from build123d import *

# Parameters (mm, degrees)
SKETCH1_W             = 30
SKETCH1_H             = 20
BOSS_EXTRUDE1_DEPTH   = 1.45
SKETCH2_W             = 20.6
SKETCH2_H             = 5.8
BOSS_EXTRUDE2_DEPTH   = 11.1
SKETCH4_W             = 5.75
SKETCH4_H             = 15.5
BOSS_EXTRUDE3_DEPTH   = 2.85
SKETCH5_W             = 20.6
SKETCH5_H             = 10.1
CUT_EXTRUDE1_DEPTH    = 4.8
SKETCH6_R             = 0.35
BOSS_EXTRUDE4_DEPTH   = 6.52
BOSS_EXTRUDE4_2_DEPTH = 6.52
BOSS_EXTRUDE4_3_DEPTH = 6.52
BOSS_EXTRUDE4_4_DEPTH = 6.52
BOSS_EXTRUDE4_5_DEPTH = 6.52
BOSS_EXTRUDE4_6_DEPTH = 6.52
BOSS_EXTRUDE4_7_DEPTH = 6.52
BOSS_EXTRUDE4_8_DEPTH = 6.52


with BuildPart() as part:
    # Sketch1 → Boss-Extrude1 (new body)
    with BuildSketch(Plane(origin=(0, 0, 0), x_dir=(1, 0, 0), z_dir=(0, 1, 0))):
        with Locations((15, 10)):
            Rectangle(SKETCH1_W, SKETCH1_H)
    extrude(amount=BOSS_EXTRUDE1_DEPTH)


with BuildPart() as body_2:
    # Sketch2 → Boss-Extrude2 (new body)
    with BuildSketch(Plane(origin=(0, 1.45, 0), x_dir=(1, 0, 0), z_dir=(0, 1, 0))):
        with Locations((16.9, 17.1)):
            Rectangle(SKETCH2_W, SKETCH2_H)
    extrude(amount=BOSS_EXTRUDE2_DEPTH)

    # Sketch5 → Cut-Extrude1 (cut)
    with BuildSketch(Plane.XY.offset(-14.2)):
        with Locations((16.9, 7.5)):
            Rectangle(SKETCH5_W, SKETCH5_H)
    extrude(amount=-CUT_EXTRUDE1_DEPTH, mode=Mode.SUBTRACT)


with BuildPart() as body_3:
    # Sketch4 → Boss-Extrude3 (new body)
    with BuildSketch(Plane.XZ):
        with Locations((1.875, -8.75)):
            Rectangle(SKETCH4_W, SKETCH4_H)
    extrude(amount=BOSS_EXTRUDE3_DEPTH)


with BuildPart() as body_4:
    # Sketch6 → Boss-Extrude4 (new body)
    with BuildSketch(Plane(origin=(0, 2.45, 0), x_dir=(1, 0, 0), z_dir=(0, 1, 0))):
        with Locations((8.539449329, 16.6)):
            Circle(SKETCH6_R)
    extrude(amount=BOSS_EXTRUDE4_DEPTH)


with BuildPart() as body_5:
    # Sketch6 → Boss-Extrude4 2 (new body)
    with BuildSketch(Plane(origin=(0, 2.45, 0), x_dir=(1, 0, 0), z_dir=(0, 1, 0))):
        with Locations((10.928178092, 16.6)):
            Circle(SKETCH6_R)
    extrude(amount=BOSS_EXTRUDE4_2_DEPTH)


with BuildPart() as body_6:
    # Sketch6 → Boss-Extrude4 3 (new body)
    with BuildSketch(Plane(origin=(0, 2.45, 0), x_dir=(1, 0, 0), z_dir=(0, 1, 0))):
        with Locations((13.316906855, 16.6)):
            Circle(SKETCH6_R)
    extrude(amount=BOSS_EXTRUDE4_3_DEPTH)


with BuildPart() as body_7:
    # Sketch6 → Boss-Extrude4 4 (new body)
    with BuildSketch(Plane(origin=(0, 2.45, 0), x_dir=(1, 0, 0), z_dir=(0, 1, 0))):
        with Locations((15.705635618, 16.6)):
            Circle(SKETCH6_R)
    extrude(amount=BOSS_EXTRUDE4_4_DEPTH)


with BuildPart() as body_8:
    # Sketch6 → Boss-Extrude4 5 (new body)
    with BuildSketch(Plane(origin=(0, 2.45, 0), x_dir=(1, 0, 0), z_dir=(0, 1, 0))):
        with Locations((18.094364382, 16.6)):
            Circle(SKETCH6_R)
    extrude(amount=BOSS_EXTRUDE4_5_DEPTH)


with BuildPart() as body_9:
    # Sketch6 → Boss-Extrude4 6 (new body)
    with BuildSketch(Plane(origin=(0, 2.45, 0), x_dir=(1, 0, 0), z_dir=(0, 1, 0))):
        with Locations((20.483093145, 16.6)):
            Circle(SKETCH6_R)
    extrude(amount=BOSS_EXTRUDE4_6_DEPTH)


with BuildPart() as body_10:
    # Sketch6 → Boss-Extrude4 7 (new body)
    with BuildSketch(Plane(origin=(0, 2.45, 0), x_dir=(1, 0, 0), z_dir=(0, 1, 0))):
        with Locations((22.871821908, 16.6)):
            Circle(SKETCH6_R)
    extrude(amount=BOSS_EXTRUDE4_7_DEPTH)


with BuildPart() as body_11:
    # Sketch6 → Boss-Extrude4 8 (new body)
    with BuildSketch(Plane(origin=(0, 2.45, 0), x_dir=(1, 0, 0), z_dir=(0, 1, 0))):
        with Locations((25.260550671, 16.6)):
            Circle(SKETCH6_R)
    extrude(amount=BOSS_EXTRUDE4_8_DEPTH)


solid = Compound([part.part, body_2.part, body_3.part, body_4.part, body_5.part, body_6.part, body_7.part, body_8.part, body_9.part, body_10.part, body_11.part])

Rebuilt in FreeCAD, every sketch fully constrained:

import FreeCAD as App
import Part
import Sketcher

V = App.Vector
Q = App.Units.Quantity

doc = App.newDocument("Part")
body = doc.addObject("PartDesign::Body", "Body")

# Sketch on XZ plane
sketch1 = body.newObject("Sketcher::SketchObject", "Sketch")
sketch1.AttachmentSupport = (doc.getObject("XZ_Plane"), [""])
sketch1.MapMode = "FlatFace"
sketch1.addGeometry(Part.LineSegment(V(0, -20, 0), V(0, 0, 0)), False)
sketch1.addGeometry(Part.LineSegment(V(0, 0, 0), V(30, 0, 0)), False)
sketch1.addGeometry(Part.LineSegment(V(30, 0, 0), V(30, -20, 0)), False)
sketch1.addGeometry(Part.LineSegment(V(30, -20, 0), V(0, -20, 0)), False)
sketch1.addConstraint(Sketcher.Constraint("Coincident", 0, 2, 1, 1))
sketch1.addConstraint(Sketcher.Constraint("Coincident", 1, 2, 2, 1))
sketch1.addConstraint(Sketcher.Constraint("Coincident", 2, 2, 3, 1))
sketch1.addConstraint(Sketcher.Constraint("Coincident", 3, 2, 0, 1))
sketch1.addConstraint(Sketcher.Constraint("Vertical", 0))
sketch1.addConstraint(Sketcher.Constraint("Horizontal", 1))
sketch1.addConstraint(Sketcher.Constraint("Vertical", 2))
sketch1.addConstraint(Sketcher.Constraint("Horizontal", 3))
sketch1.addConstraint(Sketcher.Constraint("Coincident", 0, 2, -1, 1))
sketch1.addConstraint(Sketcher.Constraint("DistanceX", 1, 1, 1, 2, Q("30 mm")))
sketch1.addConstraint(Sketcher.Constraint("DistanceY", 0, 1, 0, 2, Q("20 mm")))
pad1 = body.newObject("PartDesign::Pad", "Pad")
pad1.Profile = sketch1
pad1.Length = 1.45
pad1.Reversed = True
body2 = doc.addObject("PartDesign::Body", "Body001")

# Sketch on XZ plane
sketch2 = body2.newObject("Sketcher::SketchObject", "Sketch001")
sketch2.AttachmentSupport = (doc.getObject("XZ_Plane001"), [""])
sketch2.MapMode = "FlatFace"
sketch2.AttachmentOffset = App.Placement(V(0, 0, -1.45), App.Rotation())
sketch2.addGeometry(Part.LineSegment(V(7, -20, 0), V(7, -14, 0)), False)
sketch2.addGeometry(Part.LineSegment(V(7, -14, 0), V(27, -14, 0)), False)
sketch2.addGeometry(Part.LineSegment(V(27, -14, 0), V(27, -20, 0)), False)
sketch2.addGeometry(Part.LineSegment(V(27, -20, 0), V(7, -20, 0)), False)
sketch2.addConstraint(Sketcher.Constraint("Coincident", 0, 2, 1, 1))
sketch2.addConstraint(Sketcher.Constraint("Coincident", 1, 2, 2, 1))
sketch2.addConstraint(Sketcher.Constraint("Coincident", 2, 2, 3, 1))
sketch2.addConstraint(Sketcher.Constraint("Coincident", 3, 2, 0, 1))
sketch2.addConstraint(Sketcher.Constraint("Vertical", 0))
sketch2.addConstraint(Sketcher.Constraint("Horizontal", 1))
sketch2.addConstraint(Sketcher.Constraint("Vertical", 2))
sketch2.addConstraint(Sketcher.Constraint("Horizontal", 3))
sketch2.addConstraint(Sketcher.Constraint("DistanceX", 1, 1, 1, 2, Q("20.6 mm")))
sketch2.addConstraint(Sketcher.Constraint("DistanceY", 0, 1, 0, 2, Q("5.8 mm")))
sketch2.addConstraint(Sketcher.Constraint("DistanceY", 2, 2, -1, 1, Q("20 mm")))
sketch2.addConstraint(Sketcher.Constraint("DistanceX", -1, 1, 0, 2, Q("6.6 mm")))
pad2 = body2.newObject("PartDesign::Pad", "Pad001")
pad2.Profile = sketch2
pad2.Length = 11.1
pad2.Reversed = True

# Sketch on XY plane
sketch3 = body2.newObject("Sketcher::SketchObject", "Sketch002")
sketch3.AttachmentSupport = (doc.getObject("XY_Plane001"), [""])
sketch3.MapMode = "FlatFace"
sketch3.AttachmentOffset = App.Placement(V(0, 0, -14.2), App.Rotation())
sketch3.addGeometry(Part.LineSegment(V(7, 13, 0), V(7, 2, 0)), False)
sketch3.addGeometry(Part.LineSegment(V(7, 2, 0), V(27, 2, 0)), False)
sketch3.addGeometry(Part.LineSegment(V(27, 2, 0), V(27, 13, 0)), False)
sketch3.addGeometry(Part.LineSegment(V(27, 13, 0), V(7, 13, 0)), False)
sketch3.addConstraint(Sketcher.Constraint("Coincident", 0, 2, 1, 1))
sketch3.addConstraint(Sketcher.Constraint("Coincident", 1, 2, 2, 1))
sketch3.addConstraint(Sketcher.Constraint("Coincident", 2, 2, 3, 1))
sketch3.addConstraint(Sketcher.Constraint("Coincident", 3, 2, 0, 1))
sketch3.addConstraint(Sketcher.Constraint("Vertical", 0))
sketch3.addConstraint(Sketcher.Constraint("Horizontal", 1))
sketch3.addConstraint(Sketcher.Constraint("Vertical", 2))
sketch3.addConstraint(Sketcher.Constraint("Horizontal", 3))
sketch3.addConstraint(Sketcher.Constraint("DistanceX", 1, 1, 1, 2, Q("20.6 mm")))
sketch3.addConstraint(Sketcher.Constraint("DistanceY", 0, 2, 0, 1, Q("10.1 mm")))
sketch3.addConstraint(Sketcher.Constraint("DistanceX", -1, 1, 0, 2, Q("6.6 mm")))
sketch3.addConstraint(Sketcher.Constraint("DistanceY", -1, 1, 0, 2, Q("2.45 mm")))
pocket1 = body2.newObject("PartDesign::Pocket", "Pocket")
pocket1.Profile = sketch3
pocket1.Length = 4.8
body3 = doc.addObject("PartDesign::Body", "Body002")

# Sketch on XZ plane
sketch4 = body3.newObject("Sketcher::SketchObject", "Sketch003")
sketch4.AttachmentSupport = (doc.getObject("XZ_Plane002"), [""])
sketch4.MapMode = "FlatFace"
sketch4.addGeometry(Part.LineSegment(V(-1, -1, 0), V(-1, -16, 0)), False)
sketch4.addGeometry(Part.LineSegment(V(-1, -16, 0), V(5, -16, 0)), False)
sketch4.addGeometry(Part.LineSegment(V(5, -16, 0), V(5, -1, 0)), False)
sketch4.addGeometry(Part.LineSegment(V(5, -1, 0), V(-1, -1, 0)), False)
sketch4.addConstraint(Sketcher.Constraint("Coincident", 0, 2, 1, 1))
sketch4.addConstraint(Sketcher.Constraint("Coincident", 1, 2, 2, 1))
sketch4.addConstraint(Sketcher.Constraint("Coincident", 2, 2, 3, 1))
sketch4.addConstraint(Sketcher.Constraint("Coincident", 3, 2, 0, 1))
sketch4.addConstraint(Sketcher.Constraint("Vertical", 0))
sketch4.addConstraint(Sketcher.Constraint("Horizontal", 1))
sketch4.addConstraint(Sketcher.Constraint("Vertical", 2))
sketch4.addConstraint(Sketcher.Constraint("Horizontal", 3))
sketch4.addConstraint(Sketcher.Constraint("DistanceY", 0, 2, 0, 1, Q("15.5 mm")))
sketch4.addConstraint(Sketcher.Constraint("DistanceX", 0, 2, -1, 1, Q("1 mm")))
sketch4.addConstraint(Sketcher.Constraint("DistanceY", 2, 2, -1, 1, Q("1 mm")))
sketch4.addConstraint(Sketcher.Constraint("DistanceX", 1, 1, 1, 2, Q("5.75 mm")))
pad3 = body3.newObject("PartDesign::Pad", "Pad002")
pad3.Profile = sketch4
pad3.Length = 2.85
body4 = doc.addObject("PartDesign::Body", "Body003")

# Sketch on XZ plane
sketch5 = body4.newObject("Sketcher::SketchObject", "Sketch004")
sketch5.AttachmentSupport = (doc.getObject("XZ_Plane003"), [""])
sketch5.MapMode = "FlatFace"
sketch5.AttachmentOffset = App.Placement(V(0, 0, -2.45), App.Rotation())
sketch5.addGeometry(Part.Circle(V(8.54, -16.6, 0), V(0, 0, 1), 0.35), False)
sketch5.addConstraint(Sketcher.Constraint("Diameter", 0, Q("0.7 mm")))
sketch5.addConstraint(Sketcher.Constraint("DistanceY", 0, 3, -1, 1, Q("16.6 mm")))
sketch5.addConstraint(Sketcher.Constraint("DistanceX", -1, 1, 0, 3, Q("8.539449 mm")))
pad4 = body4.newObject("PartDesign::Pad", "Pad003")
pad4.Profile = sketch5
pad4.Length = 6.52
pad4.Reversed = True
body5 = doc.addObject("PartDesign::Body", "Body004")

# Sketch on XZ plane
sketch6 = body5.newObject("Sketcher::SketchObject", "Sketch005")
sketch6.AttachmentSupport = (doc.getObject("XZ_Plane004"), [""])
sketch6.MapMode = "FlatFace"
sketch6.AttachmentOffset = App.Placement(V(0, 0, -2.45), App.Rotation())
sketch6.addGeometry(Part.Circle(V(10.93, -16.6, 0), V(0, 0, 1), 0.35), False)
sketch6.addConstraint(Sketcher.Constraint("Diameter", 0, Q("0.7 mm")))
sketch6.addConstraint(Sketcher.Constraint("DistanceY", 0, 3, -1, 1, Q("16.6 mm")))
sketch6.addConstraint(Sketcher.Constraint("DistanceX", -1, 1, 0, 3, Q("10.928178 mm")))
pad5 = body5.newObject("PartDesign::Pad", "Pad004")
pad5.Profile = sketch6
pad5.Length = 6.52
pad5.Reversed = True
body6 = doc.addObject("PartDesign::Body", "Body005")

# Sketch on XZ plane
sketch7 = body6.newObject("Sketcher::SketchObject", "Sketch006")
sketch7.AttachmentSupport = (doc.getObject("XZ_Plane005"), [""])
sketch7.MapMode = "FlatFace"
sketch7.AttachmentOffset = App.Placement(V(0, 0, -2.45), App.Rotation())
sketch7.addGeometry(Part.Circle(V(13.32, -16.6, 0), V(0, 0, 1), 0.35), False)
sketch7.addConstraint(Sketcher.Constraint("Diameter", 0, Q("0.7 mm")))
sketch7.addConstraint(Sketcher.Constraint("DistanceY", 0, 3, -1, 1, Q("16.6 mm")))
sketch7.addConstraint(Sketcher.Constraint("DistanceX", -1, 1, 0, 3, Q("13.316907 mm")))
pad6 = body6.newObject("PartDesign::Pad", "Pad005")
pad6.Profile = sketch7
pad6.Length = 6.52
pad6.Reversed = True
body7 = doc.addObject("PartDesign::Body", "Body006")

# Sketch on XZ plane
sketch8 = body7.newObject("Sketcher::SketchObject", "Sketch007")
sketch8.AttachmentSupport = (doc.getObject("XZ_Plane006"), [""])
sketch8.MapMode = "FlatFace"
sketch8.AttachmentOffset = App.Placement(V(0, 0, -2.45), App.Rotation())
sketch8.addGeometry(Part.Circle(V(15.71, -16.6, 0), V(0, 0, 1), 0.35), False)
sketch8.addConstraint(Sketcher.Constraint("Diameter", 0, Q("0.7 mm")))
sketch8.addConstraint(Sketcher.Constraint("DistanceY", 0, 3, -1, 1, Q("16.6 mm")))
sketch8.addConstraint(Sketcher.Constraint("DistanceX", -1, 1, 0, 3, Q("15.705636 mm")))
pad7 = body7.newObject("PartDesign::Pad", "Pad006")
pad7.Profile = sketch8
pad7.Length = 6.52
pad7.Reversed = True
body8 = doc.addObject("PartDesign::Body", "Body007")

# Sketch on XZ plane
sketch9 = body8.newObject("Sketcher::SketchObject", "Sketch008")
sketch9.AttachmentSupport = (doc.getObject("XZ_Plane007"), [""])
sketch9.MapMode = "FlatFace"
sketch9.AttachmentOffset = App.Placement(V(0, 0, -2.45), App.Rotation())
sketch9.addGeometry(Part.Circle(V(18.09, -16.6, 0), V(0, 0, 1), 0.35), False)
sketch9.addConstraint(Sketcher.Constraint("Diameter", 0, Q("0.7 mm")))
sketch9.addConstraint(Sketcher.Constraint("DistanceY", 0, 3, -1, 1, Q("16.6 mm")))
sketch9.addConstraint(Sketcher.Constraint("DistanceX", -1, 1, 0, 3, Q("18.094364 mm")))
pad8 = body8.newObject("PartDesign::Pad", "Pad007")
pad8.Profile = sketch9
pad8.Length = 6.52
pad8.Reversed = True
body9 = doc.addObject("PartDesign::Body", "Body008")

# Sketch on XZ plane
sketch10 = body9.newObject("Sketcher::SketchObject", "Sketch009")
sketch10.AttachmentSupport = (doc.getObject("XZ_Plane008"), [""])
sketch10.MapMode = "FlatFace"
sketch10.AttachmentOffset = App.Placement(V(0, 0, -2.45), App.Rotation())
sketch10.addGeometry(Part.Circle(V(20.48, -16.6, 0), V(0, 0, 1), 0.35), False)
sketch10.addConstraint(Sketcher.Constraint("Diameter", 0, Q("0.7 mm")))
sketch10.addConstraint(Sketcher.Constraint("DistanceY", 0, 3, -1, 1, Q("16.6 mm")))
sketch10.addConstraint(Sketcher.Constraint("DistanceX", -1, 1, 0, 3, Q("20.483093 mm")))
pad9 = body9.newObject("PartDesign::Pad", "Pad008")
pad9.Profile = sketch10
pad9.Length = 6.52
pad9.Reversed = True
body10 = doc.addObject("PartDesign::Body", "Body009")

# Sketch on XZ plane
sketch11 = body10.newObject("Sketcher::SketchObject", "Sketch010")
sketch11.AttachmentSupport = (doc.getObject("XZ_Plane009"), [""])
sketch11.MapMode = "FlatFace"
sketch11.AttachmentOffset = App.Placement(V(0, 0, -2.45), App.Rotation())
sketch11.addGeometry(Part.Circle(V(22.87, -16.6, 0), V(0, 0, 1), 0.35), False)
sketch11.addConstraint(Sketcher.Constraint("Diameter", 0, Q("0.7 mm")))
sketch11.addConstraint(Sketcher.Constraint("DistanceY", 0, 3, -1, 1, Q("16.6 mm")))
sketch11.addConstraint(Sketcher.Constraint("DistanceX", -1, 1, 0, 3, Q("22.871822 mm")))
pad10 = body10.newObject("PartDesign::Pad", "Pad009")
pad10.Profile = sketch11
pad10.Length = 6.52
pad10.Reversed = True
body11 = doc.addObject("PartDesign::Body", "Body010")

# Sketch on XZ plane
sketch12 = body11.newObject("Sketcher::SketchObject", "Sketch011")
sketch12.AttachmentSupport = (doc.getObject("XZ_Plane010"), [""])
sketch12.MapMode = "FlatFace"
sketch12.AttachmentOffset = App.Placement(V(0, 0, -2.45), App.Rotation())
sketch12.addGeometry(Part.Circle(V(25.26, -16.6, 0), V(0, 0, 1), 0.35), False)
sketch12.addConstraint(Sketcher.Constraint("Diameter", 0, Q("0.7 mm")))
sketch12.addConstraint(Sketcher.Constraint("DistanceY", 0, 3, -1, 1, Q("16.6 mm")))
sketch12.addConstraint(Sketcher.Constraint("DistanceX", -1, 1, 0, 3, Q("25.260551 mm")))
pad11 = body11.newObject("PartDesign::Pad", "Pad010")
pad11.Profile = sketch12
pad11.Length = 6.52
pad11.Reversed = True

doc.recompute()
